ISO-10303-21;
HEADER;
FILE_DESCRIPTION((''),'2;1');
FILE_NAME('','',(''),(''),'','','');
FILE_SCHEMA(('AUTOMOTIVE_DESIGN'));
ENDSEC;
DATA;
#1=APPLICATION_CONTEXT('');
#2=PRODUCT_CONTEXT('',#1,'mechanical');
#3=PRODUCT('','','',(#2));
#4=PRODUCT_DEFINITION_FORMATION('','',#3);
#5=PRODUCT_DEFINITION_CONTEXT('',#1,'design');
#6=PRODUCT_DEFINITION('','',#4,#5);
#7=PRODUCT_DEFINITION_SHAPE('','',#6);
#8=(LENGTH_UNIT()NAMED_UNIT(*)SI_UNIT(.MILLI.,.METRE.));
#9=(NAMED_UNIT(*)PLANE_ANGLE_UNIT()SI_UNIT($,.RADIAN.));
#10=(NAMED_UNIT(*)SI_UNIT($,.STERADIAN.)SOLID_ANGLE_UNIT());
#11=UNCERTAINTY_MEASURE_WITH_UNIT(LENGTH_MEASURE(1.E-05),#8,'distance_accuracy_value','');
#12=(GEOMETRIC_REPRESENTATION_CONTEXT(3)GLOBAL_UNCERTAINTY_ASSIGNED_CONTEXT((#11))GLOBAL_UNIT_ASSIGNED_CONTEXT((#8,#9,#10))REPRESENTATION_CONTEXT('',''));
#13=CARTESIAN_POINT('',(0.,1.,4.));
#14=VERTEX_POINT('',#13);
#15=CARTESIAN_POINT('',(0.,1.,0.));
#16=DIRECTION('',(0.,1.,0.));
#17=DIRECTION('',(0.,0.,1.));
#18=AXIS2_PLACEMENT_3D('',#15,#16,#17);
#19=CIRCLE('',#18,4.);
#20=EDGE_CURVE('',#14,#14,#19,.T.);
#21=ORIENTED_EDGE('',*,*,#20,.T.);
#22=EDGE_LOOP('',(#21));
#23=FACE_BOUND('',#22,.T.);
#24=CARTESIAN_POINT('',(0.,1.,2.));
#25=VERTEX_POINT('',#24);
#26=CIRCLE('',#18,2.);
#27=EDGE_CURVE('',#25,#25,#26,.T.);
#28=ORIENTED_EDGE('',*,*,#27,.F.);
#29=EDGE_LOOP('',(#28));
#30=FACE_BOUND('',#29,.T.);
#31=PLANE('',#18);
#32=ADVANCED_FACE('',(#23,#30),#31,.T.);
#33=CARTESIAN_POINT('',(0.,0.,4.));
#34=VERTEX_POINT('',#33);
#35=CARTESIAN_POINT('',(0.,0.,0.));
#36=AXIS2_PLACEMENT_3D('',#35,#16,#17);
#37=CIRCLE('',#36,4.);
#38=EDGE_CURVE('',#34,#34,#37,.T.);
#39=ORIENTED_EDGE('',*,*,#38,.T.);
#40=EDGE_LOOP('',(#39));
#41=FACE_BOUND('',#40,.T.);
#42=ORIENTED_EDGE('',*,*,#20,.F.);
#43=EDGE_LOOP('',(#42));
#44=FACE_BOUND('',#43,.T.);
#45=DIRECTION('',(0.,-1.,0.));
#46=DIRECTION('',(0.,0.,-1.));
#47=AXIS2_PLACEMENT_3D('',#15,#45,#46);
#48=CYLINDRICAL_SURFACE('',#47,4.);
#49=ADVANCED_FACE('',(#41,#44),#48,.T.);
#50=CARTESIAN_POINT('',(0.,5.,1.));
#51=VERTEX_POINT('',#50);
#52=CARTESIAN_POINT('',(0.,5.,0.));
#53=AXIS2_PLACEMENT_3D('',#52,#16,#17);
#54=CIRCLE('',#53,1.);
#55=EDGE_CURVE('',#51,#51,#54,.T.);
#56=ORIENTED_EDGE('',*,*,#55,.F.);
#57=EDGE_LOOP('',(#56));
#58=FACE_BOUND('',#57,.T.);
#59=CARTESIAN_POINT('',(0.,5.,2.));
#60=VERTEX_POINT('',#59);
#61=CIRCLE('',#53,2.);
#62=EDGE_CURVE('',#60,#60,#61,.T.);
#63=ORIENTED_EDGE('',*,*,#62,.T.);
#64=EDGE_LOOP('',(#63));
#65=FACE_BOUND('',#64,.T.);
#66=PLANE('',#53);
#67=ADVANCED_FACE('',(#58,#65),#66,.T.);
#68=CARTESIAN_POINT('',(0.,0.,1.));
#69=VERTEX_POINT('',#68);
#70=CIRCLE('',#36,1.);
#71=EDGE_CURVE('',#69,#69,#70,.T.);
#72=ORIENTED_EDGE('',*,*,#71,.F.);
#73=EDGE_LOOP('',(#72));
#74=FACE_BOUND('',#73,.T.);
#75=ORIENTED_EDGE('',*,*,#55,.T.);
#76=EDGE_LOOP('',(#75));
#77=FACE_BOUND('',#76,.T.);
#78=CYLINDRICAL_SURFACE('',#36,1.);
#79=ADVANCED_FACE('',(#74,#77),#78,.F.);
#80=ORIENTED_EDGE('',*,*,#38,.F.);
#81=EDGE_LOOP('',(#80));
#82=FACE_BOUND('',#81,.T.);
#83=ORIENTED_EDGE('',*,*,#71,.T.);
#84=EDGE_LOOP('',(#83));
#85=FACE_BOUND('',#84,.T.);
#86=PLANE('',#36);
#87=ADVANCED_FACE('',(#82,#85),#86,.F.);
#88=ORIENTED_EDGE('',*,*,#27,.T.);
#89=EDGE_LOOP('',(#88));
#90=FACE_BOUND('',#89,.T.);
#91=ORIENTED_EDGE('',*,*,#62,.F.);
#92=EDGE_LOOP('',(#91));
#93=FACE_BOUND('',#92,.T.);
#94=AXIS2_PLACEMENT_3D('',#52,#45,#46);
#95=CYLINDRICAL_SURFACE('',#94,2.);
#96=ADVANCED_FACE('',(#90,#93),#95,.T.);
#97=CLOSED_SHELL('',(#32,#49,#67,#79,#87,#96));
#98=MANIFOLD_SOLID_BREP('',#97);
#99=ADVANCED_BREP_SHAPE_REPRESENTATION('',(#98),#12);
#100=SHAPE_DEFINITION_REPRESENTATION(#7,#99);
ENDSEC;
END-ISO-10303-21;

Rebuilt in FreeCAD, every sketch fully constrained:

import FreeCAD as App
import Part
import Sketcher
Q = App.Units.Quantity

doc = App.newDocument("Part")
params = doc.addObject("Spreadsheet::Sheet", "Params")
for row, (alias, value) in enumerate([
    ("sketch1_diameter", "8 mm"),
    ("pad1_length", "1 mm"),
    ("sketch2_diameter", "4 mm"),
    ("pad2_length", "4 mm"),
    ("sketch3_diameter", "2 mm"),
], start=1):
    params.set(f"A{row}", alias)
    params.set(f"B{row}", "=" + value)
    params.setAlias(f"B{row}", alias)

body = doc.addObject("PartDesign::Body", "Body")

# Sketch on XZ plane
sketch1 = body.newObject("Sketcher::SketchObject", "Sketch")
sketch1.AttachmentSupport = (doc.getObject("XZ_Plane"), [""])
sketch1.MapMode = "FlatFace"
sketch1.addGeometry(Part.Circle(App.Vector(0, 0, 0), App.Vector(0, 0, 1), 4), False)
sketch1.addConstraint([
    Sketcher.Constraint("Coincident", 0, 3, -1, 1),
    Sketcher.Constraint("Diameter", 0, Q("8 mm")),
])
sketch1.setExpression("Constraints[1]", "Params.sketch1_diameter")
pad1 = body.newObject("PartDesign::Pad", "Pad")
pad1.Profile = sketch1
pad1.setExpression("Length", "Params.pad1_length")
pad1.Reversed = True

# Sketch on XZ plane
sketch2 = body.newObject("Sketcher::SketchObject", "Sketch001")
sketch2.AttachmentSupport = (doc.getObject("XZ_Plane"), [""])
sketch2.MapMode = "FlatFace"
sketch2.AttachmentOffset = App.Placement(App.Vector(0, 0, -1), App.Rotation())
sketch2.addGeometry(Part.Circle(App.Vector(0, 0, 0), App.Vector(0, 0, 1), 2), False)
sketch2.addConstraint([
    Sketcher.Constraint("Coincident", 0, 3, -1, 1),
    Sketcher.Constraint("Diameter", 0, Q("4 mm")),
])
sketch2.setExpression("Constraints[1]", "Params.sketch2_diameter")
pad2 = body.newObject("PartDesign::Pad", "Pad001")
pad2.Profile = sketch2
pad2.setExpression("Length", "Params.pad2_length")
pad2.Reversed = True

# Sketch on XZ plane
sketch3 = body.newObject("Sketcher::SketchObject", "Sketch002")
sketch3.AttachmentSupport = (doc.getObject("XZ_Plane"), [""])
sketch3.MapMode = "FlatFace"
sketch3.AttachmentOffset = App.Placement(App.Vector(0, 0, -5), App.Rotation())
sketch3.addGeometry(Part.Circle(App.Vector(0, 0, 0), App.Vector(0, 0, 1), 1), False)
sketch3.addConstraint([
    Sketcher.Constraint("Coincident", 0, 3, -1, 1),
    Sketcher.Constraint("Diameter", 0, Q("2 mm")),
])
sketch3.setExpression("Constraints[1]", "Params.sketch3_diameter")
pocket1 = body.newObject("PartDesign::Pocket", "Pocket")
pocket1.Profile = sketch3
pocket1.Type = "ThroughAll"
pocket1.Reversed = True

doc.recompute()
